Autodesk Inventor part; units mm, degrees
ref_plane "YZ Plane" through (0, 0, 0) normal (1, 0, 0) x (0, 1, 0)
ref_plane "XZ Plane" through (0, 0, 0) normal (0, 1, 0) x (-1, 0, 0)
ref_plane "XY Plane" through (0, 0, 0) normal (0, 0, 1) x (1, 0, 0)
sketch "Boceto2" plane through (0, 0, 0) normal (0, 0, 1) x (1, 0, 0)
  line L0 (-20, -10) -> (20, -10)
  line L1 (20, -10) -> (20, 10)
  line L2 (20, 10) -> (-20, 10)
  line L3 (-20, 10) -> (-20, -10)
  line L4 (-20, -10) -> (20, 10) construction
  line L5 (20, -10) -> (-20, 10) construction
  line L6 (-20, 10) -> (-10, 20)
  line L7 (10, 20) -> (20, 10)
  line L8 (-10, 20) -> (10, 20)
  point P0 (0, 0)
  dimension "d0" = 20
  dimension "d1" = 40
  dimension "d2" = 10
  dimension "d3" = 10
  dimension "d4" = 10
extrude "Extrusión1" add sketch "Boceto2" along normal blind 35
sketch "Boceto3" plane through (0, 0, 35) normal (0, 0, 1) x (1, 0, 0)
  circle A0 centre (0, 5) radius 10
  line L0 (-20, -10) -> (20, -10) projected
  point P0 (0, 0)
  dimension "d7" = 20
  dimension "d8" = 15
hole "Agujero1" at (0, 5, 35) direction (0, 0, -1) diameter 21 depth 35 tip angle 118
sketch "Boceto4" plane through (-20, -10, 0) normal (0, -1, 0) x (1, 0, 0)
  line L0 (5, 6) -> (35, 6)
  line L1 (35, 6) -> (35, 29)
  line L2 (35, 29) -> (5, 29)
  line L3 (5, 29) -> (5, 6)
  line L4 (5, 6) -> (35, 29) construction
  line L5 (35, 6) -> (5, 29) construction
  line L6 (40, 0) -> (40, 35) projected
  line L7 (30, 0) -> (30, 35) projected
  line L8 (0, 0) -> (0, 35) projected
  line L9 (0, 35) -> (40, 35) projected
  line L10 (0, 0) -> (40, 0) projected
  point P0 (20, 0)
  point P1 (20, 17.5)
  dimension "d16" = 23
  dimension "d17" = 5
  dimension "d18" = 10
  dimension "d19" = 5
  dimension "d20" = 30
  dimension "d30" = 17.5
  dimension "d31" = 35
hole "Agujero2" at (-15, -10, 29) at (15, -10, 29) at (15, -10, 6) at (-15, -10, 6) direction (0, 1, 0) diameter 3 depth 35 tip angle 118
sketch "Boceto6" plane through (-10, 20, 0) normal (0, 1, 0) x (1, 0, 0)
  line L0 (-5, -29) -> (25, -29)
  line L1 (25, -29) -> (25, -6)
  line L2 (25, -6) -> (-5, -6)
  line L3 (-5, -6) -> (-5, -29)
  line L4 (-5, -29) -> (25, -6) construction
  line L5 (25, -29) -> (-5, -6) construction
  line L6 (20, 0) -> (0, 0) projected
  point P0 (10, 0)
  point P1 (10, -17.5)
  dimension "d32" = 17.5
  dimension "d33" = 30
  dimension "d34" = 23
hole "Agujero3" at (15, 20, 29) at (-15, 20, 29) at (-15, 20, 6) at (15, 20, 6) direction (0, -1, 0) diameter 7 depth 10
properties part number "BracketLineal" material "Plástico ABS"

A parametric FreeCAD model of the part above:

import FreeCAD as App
import Part
import Sketcher


def add_polygon(sketch, points):
    """Adds a closed chain of lines whose ends are joined by coincident constraints."""
    first, n = sketch.GeometryCount, len(points)
    for a, b in zip(points, points[1:] + points[:1]):
        sketch.addGeometry(Part.LineSegment(App.Vector(*a, 0), App.Vector(*b, 0)), False)
    for i in range(n):
        sketch.addConstraint(Sketcher.Constraint("Coincident", first + i, 2, first + (i + 1) % n, 1))

doc = App.newDocument("Part")
params = doc.addObject("Spreadsheet::Sheet", "Params")
for row, (alias, value) in enumerate([
    ("sketch1_width", "40 mm"),
    ("sketch1_width2", "20 mm"),
    ("pad1_length", "35 mm"),
    ("sketch2_diameter", "21 mm"),
    ("hole_diameter", "21 mm"),
    ("hole_depth", "35 mm"),
    ("sketch3_diameter", "3 mm"),
    ("hole2_diameter", "3 mm"),
    ("hole2_depth", "35 mm"),
    ("sketch4_diameter", "7 mm"),
    ("hole3_diameter", "7 mm"),
    ("hole3_depth", "10 mm"),
], start=1):
    params.set(f"A{row}", alias)
    params.set(f"B{row}", "=" + value)
    params.setAlias(f"B{row}", alias)

body = doc.addObject("PartDesign::Body", "Body")

# Sketch on XY plane
sketch1 = doc.addObject("Sketcher::SketchObject", "Sketch")
body.addObject(sketch1)
sketch1.AttachmentSupport = (doc.XY_Plane, [""])
sketch1.MapMode = "FlatFace"
add_polygon(sketch1, [(-20, 10), (-20, -10), (20, -10), (20, 10), (10, 20), (-10, 20)])  # lines 0-5
sketch1.addConstraint([
    Sketcher.Constraint("Vertical", 0),
    Sketcher.Constraint("Horizontal", 1),
    Sketcher.Constraint("Vertical", 2),
    Sketcher.Constraint("Horizontal", 4),
    Sketcher.Constraint("Symmetric", 0, 2, 2, 2, -1, 1),
    Sketcher.Constraint("Perpendicular", 3, 5),
    Sketcher.Constraint("Horizontal", 2, 2, 5, 2),
    Sketcher.Constraint("Equal", 4, 0),
    Sketcher.Constraint("Equal", 3, 5),
    Sketcher.Constraint("DistanceX", 1, 1, 1, 2, 40.0),
    Sketcher.Constraint("DistanceX", 4, 2, 4, 1, 20.0),
])
sketch1.setExpression("Constraints[15]", "Params.sketch1_width")
sketch1.setExpression("Constraints[16]", "Params.sketch1_width2")
pad1 = doc.addObject("PartDesign::Pad", "Pad")
body.addObject(pad1)
pad1.Profile = sketch1
pad1.setExpression("Length", "Params.pad1_length")

# Sketch on XY plane
sketch2 = doc.addObject("Sketcher::SketchObject", "Sketch001")
body.addObject(sketch2)
sketch2.AttachmentSupport = (doc.XY_Plane, [""])
sketch2.MapMode = "FlatFace"
sketch2.AttachmentOffset = App.Placement(App.Vector(0, 0, 35), App.Rotation())
sketch2.addGeometry(Part.Circle(App.Vector(0, 5, 0), App.Vector(0, 0, 1), 10.5), False)
sketch2.addConstraint([
    Sketcher.Constraint("PointOnObject", 0, 3, -2),
    Sketcher.Constraint("Diameter", 0, 21.0),
    Sketcher.Constraint("DistanceY", -1, 1, 0, 3, 5.0),
])
sketch2.setExpression("Constraints[1]", "Params.sketch2_diameter")
doc.recompute()
hole = doc.addObject("PartDesign::Hole", "Hole")
body.addObject(hole)
hole.Profile = sketch2
hole.ThreadType = "None"
hole.setExpression("Diameter", "Params.hole_diameter")
hole.DepthType = "Dimension"
hole.setExpression("Depth", "Params.hole_depth")
hole.DrillPoint = "Angled"
hole.DrillPointAngle = 118

# Sketch on XZ plane
sketch3 = doc.addObject("Sketcher::SketchObject", "Sketch002")
body.addObject(sketch3)
sketch3.AttachmentSupport = (doc.XZ_Plane, [""])
sketch3.MapMode = "FlatFace"
sketch3.AttachmentOffset = App.Placement(App.Vector(0, 0, 10), App.Rotation())
sketch3.addGeometry([
    Part.Circle(App.Vector(-15, 29, 0), App.Vector(0, 0, 1), 1.5),
    Part.Circle(App.Vector(15, 29, 0), App.Vector(0, 0, 1), 1.5),
    Part.Circle(App.Vector(15, 6, 0), App.Vector(0, 0, 1), 1.5),
    Part.Circle(App.Vector(-15, 6, 0), App.Vector(0, 0, 1), 1.5),
], False)
sketch3.addConstraint([
    Sketcher.Constraint("Equal", 0, 1),
    Sketcher.Constraint("Equal", 1, 2),
    Sketcher.Constraint("Equal", 2, 3),
    Sketcher.Constraint("Symmetric", 0, 3, 1, 3, -2),
    Sketcher.Constraint("Symmetric", 2, 3, 3, 3, -2),
    Sketcher.Constraint("Vertical", 1, 3, 2, 3),
    Sketcher.Constraint("Diameter", 0, 3.0),
    Sketcher.Constraint("DistanceX", 0, 3, -1, 1, 15.0),
    Sketcher.Constraint("DistanceY", -1, 1, 0, 3, 29.0),
    Sketcher.Constraint("DistanceY", -1, 1, 2, 3, 6.0),
])
sketch3.setExpression("Constraints[6]", "Params.sketch3_diameter")
doc.recompute()
hole2 = doc.addObject("PartDesign::Hole", "Hole001")
body.addObject(hole2)
hole2.Profile = sketch3
hole2.ThreadType = "None"
hole2.setExpression("Diameter", "Params.hole2_diameter")
hole2.DepthType = "Dimension"
hole2.setExpression("Depth", "Params.hole2_depth")
hole2.DrillPoint = "Angled"
hole2.DrillPointAngle = 118

# Sketch on XZ plane
sketch4 = doc.addObject("Sketcher::SketchObject", "Sketch003")
body.addObject(sketch4)
sketch4.AttachmentSupport = (doc.XZ_Plane, [""])
sketch4.MapMode = "FlatFace"
sketch4.AttachmentOffset = App.Placement(App.Vector(0, 0, -20), App.Rotation())
sketch4.addGeometry([
    Part.Circle(App.Vector(15, 29, 0), App.Vector(0, 0, 1), 3.5),
    Part.Circle(App.Vector(-15, 29, 0), App.Vector(0, 0, 1), 3.5),
    Part.Circle(App.Vector(-15, 6, 0), App.Vector(0, 0, 1), 3.5),
    Part.Circle(App.Vector(15, 6, 0), App.Vector(0, 0, 1), 3.5),
], False)
sketch4.addConstraint([
    Sketcher.Constraint("Equal", 0, 1),
    Sketcher.Constraint("Equal", 1, 2),
    Sketcher.Constraint("Equal", 2, 3),
    Sketcher.Constraint("Symmetric", 0, 3, 1, 3, -2),
    Sketcher.Constraint("Symmetric", 2, 3, 3, 3, -2),
    Sketcher.Constraint("Vertical", 1, 3, 2, 3),
    Sketcher.Constraint("Diameter", 0, 7.0),
    Sketcher.Constraint("DistanceX", -1, 1, 0, 3, 15.0),
    Sketcher.Constraint("DistanceY", -1, 1, 0, 3, 29.0),
    Sketcher.Constraint("DistanceY", -1, 1, 2, 3, 6.0),
])
sketch4.setExpression("Constraints[6]", "Params.sketch4_diameter")
doc.recompute()
hole3 = doc.addObject("PartDesign::Hole", "Hole002")
body.addObject(hole3)
hole3.Profile = sketch4
hole3.ThreadType = "None"
hole3.setExpression("Diameter", "Params.hole3_diameter")
hole3.DepthType = "Dimension"
hole3.setExpression("Depth", "Params.hole3_depth")
hole3.DrillPoint = "Flat"
hole3.Reversed = True

doc.recompute()
